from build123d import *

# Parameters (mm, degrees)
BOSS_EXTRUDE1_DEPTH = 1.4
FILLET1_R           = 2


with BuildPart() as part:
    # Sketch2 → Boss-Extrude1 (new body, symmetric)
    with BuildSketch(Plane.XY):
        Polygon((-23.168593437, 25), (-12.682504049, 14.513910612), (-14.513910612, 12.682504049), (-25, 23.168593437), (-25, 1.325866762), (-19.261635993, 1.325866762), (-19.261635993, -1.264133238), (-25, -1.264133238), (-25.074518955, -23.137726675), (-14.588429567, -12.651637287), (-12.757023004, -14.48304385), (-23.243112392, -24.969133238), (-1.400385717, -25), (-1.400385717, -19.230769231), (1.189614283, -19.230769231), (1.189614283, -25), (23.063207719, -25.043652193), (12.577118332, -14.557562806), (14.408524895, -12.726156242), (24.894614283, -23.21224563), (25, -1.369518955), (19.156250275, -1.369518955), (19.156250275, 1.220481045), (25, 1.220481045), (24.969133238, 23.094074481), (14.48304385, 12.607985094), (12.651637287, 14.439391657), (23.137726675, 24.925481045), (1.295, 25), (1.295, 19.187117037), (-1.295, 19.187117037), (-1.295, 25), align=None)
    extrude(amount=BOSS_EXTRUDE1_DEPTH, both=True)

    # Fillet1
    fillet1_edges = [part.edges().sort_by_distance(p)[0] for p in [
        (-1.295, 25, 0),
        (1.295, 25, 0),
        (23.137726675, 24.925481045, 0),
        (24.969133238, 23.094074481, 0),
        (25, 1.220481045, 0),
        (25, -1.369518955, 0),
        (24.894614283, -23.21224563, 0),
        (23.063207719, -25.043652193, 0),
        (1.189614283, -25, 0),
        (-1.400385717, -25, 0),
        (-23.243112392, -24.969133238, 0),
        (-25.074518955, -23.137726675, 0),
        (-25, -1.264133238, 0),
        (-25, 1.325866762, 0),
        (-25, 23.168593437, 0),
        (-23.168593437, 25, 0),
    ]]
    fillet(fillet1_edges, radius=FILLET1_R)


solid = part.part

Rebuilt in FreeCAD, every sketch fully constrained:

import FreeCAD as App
import Part
import Sketcher
from FreeCAD import Vector
Q = App.Units.Quantity


def edges_at(feature, points):
    """Names of the edges that pass closest to the given points."""
    edges = feature.Shape.Edges
    near = lambda p: min(range(len(edges)), key=lambda i: edges[i].distToShape(Part.Vertex(*p))[0])
    return sorted({f"Edge{near(p) + 1}" for p in points})

doc = App.newDocument("Part")
params = doc.addObject("Spreadsheet::Sheet", "Params")
for row, (alias, value) in enumerate([
    ("sketch1_width", "2.59 mm"),
    ("sketch1_length", "2.59 mm"),
    ("pad1_length", "2.8 mm"),
    ("fillet_radius", "2 mm"),
], start=1):
    params.set(f"A{row}", alias)
    params.set(f"B{row}", "=" + value)
    params.setAlias(f"B{row}", alias)

body = doc.addObject("PartDesign::Body", "Body")

sketch1 = doc.addObject("Sketcher::SketchObject", "Sketch")
body.addObject(sketch1)
sketch1.AttachmentSupport = (doc.XY_Plane, [""])
sketch1.MapMode = "FlatFace"
sketch1.addGeometry(Part.LineSegment(Vector(-23.2, 25, 0), Vector(-12.7, 14.5, 0)), False)
sketch1.addGeometry(Part.LineSegment(Vector(-12.7, 14.5, 0), Vector(-14.5, 12.7, 0)), False)
sketch1.addGeometry(Part.LineSegment(Vector(-14.5, 12.7, 0), Vector(-25, 23.2, 0)), False)
sketch1.addGeometry(Part.LineSegment(Vector(-25, 23.2, 0), Vector(-25, 1.3, 0)), False)
sketch1.addGeometry(Part.LineSegment(Vector(-25, 1.3, 0), Vector(-19.3, 1.3, 0)), False)
sketch1.addGeometry(Part.LineSegment(Vector(-19.3, 1.3, 0), Vector(-19.3, -1.3, 0)), False)
sketch1.addGeometry(Part.LineSegment(Vector(-19.3, -1.3, 0), Vector(-25, -1.3, 0)), False)
sketch1.addGeometry(Part.LineSegment(Vector(-25, -1.3, 0), Vector(-25.1, -23.1, 0)), False)
sketch1.addGeometry(Part.LineSegment(Vector(-25.1, -23.1, 0), Vector(-14.6, -12.7, 0)), False)
sketch1.addGeometry(Part.LineSegment(Vector(-14.6, -12.7, 0), Vector(-12.8, -14.5, 0)), False)
sketch1.addGeometry(Part.LineSegment(Vector(-12.8, -14.5, 0), Vector(-23.2, -25, 0)), False)
sketch1.addGeometry(Part.LineSegment(Vector(-23.2, -25, 0), Vector(-1.4, -25, 0)), False)
sketch1.addGeometry(Part.LineSegment(Vector(-1.4, -25, 0), Vector(-1.4, -19.2, 0)), False)
sketch1.addGeometry(Part.LineSegment(Vector(-1.4, -19.2, 0), Vector(1.2, -19.2, 0)), False)
sketch1.addGeometry(Part.LineSegment(Vector(1.2, -19.2, 0), Vector(1.2, -25, 0)), False)
sketch1.addGeometry(Part.LineSegment(Vector(1.2, -25, 0), Vector(23.1, -25, 0)), False)
sketch1.addGeometry(Part.LineSegment(Vector(23.1, -25, 0), Vector(12.6, -14.6, 0)), False)
sketch1.addGeometry(Part.LineSegment(Vector(12.6, -14.6, 0), Vector(14.4, -12.7, 0)), False)
sketch1.addGeometry(Part.LineSegment(Vector(14.4, -12.7, 0), Vector(24.9, -23.2, 0)), False)
sketch1.addGeometry(Part.LineSegment(Vector(24.9, -23.2, 0), Vector(25, -1.4, 0)), False)
sketch1.addGeometry(Part.LineSegment(Vector(25, -1.4, 0), Vector(19.2, -1.4, 0)), False)
sketch1.addGeometry(Part.LineSegment(Vector(19.2, -1.4, 0), Vector(19.2, 1.2, 0)), False)
sketch1.addGeometry(Part.LineSegment(Vector(19.2, 1.2, 0), Vector(25, 1.2, 0)), False)
sketch1.addGeometry(Part.LineSegment(Vector(25, 1.2, 0), Vector(25, 23.1, 0)), False)
sketch1.addGeometry(Part.LineSegment(Vector(25, 23.1, 0), Vector(14.5, 12.6, 0)), False)
sketch1.addGeometry(Part.LineSegment(Vector(14.5, 12.6, 0), Vector(12.7, 14.4, 0)), False)
sketch1.addGeometry(Part.LineSegment(Vector(12.7, 14.4, 0), Vector(23.1, 24.9, 0)), False)
sketch1.addGeometry(Part.LineSegment(Vector(23.1, 24.9, 0), Vector(1.3, 25, 0)), False)
sketch1.addGeometry(Part.LineSegment(Vector(1.3, 25, 0), Vector(1.3, 19.2, 0)), False)
sketch1.addGeometry(Part.LineSegment(Vector(1.3, 19.2, 0), Vector(-1.3, 19.2, 0)), False)
sketch1.addGeometry(Part.LineSegment(Vector(-1.3, 19.2, 0), Vector(-1.3, 25, 0)), False)
sketch1.addGeometry(Part.LineSegment(Vector(-1.3, 25, 0), Vector(-23.2, 25, 0)), False)
sketch1.addConstraint(Sketcher.Constraint("Coincident", 0, 2, 1, 1))
sketch1.addConstraint(Sketcher.Constraint("Coincident", 1, 2, 2, 1))
sketch1.addConstraint(Sketcher.Constraint("Coincident", 2, 2, 3, 1))
sketch1.addConstraint(Sketcher.Constraint("Coincident", 3, 2, 4, 1))
sketch1.addConstraint(Sketcher.Constraint("Coincident", 4, 2, 5, 1))
sketch1.addConstraint(Sketcher.Constraint("Coincident", 5, 2, 6, 1))
sketch1.addConstraint(Sketcher.Constraint("Coincident", 6, 2, 7, 1))
sketch1.addConstraint(Sketcher.Constraint("Coincident", 7, 2, 8, 1))
sketch1.addConstraint(Sketcher.Constraint("Coincident", 8, 2, 9, 1))
sketch1.addConstraint(Sketcher.Constraint("Coincident", 9, 2, 10, 1))
sketch1.addConstraint(Sketcher.Constraint("Coincident", 10, 2, 11, 1))
sketch1.addConstraint(Sketcher.Constraint("Coincident", 11, 2, 12, 1))
sketch1.addConstraint(Sketcher.Constraint("Coincident", 12, 2, 13, 1))
sketch1.addConstraint(Sketcher.Constraint("Coincident", 13, 2, 14, 1))
sketch1.addConstraint(Sketcher.Constraint("Coincident", 14, 2, 15, 1))
sketch1.addConstraint(Sketcher.Constraint("Coincident", 15, 2, 16, 1))
sketch1.addConstraint(Sketcher.Constraint("Coincident", 16, 2, 17, 1))
sketch1.addConstraint(Sketcher.Constraint("Coincident", 17, 2, 18, 1))
sketch1.addConstraint(Sketcher.Constraint("Coincident", 18, 2, 19, 1))
sketch1.addConstraint(Sketcher.Constraint("Coincident", 19, 2, 20, 1))
sketch1.addConstraint(Sketcher.Constraint("Coincident", 20, 2, 21, 1))
sketch1.addConstraint(Sketcher.Constraint("Coincident", 21, 2, 22, 1))
sketch1.addConstraint(Sketcher.Constraint("Coincident", 22, 2, 23, 1))
sketch1.addConstraint(Sketcher.Constraint("Coincident", 23, 2, 24, 1))
sketch1.addConstraint(Sketcher.Constraint("Coincident", 24, 2, 25, 1))
sketch1.addConstraint(Sketcher.Constraint("Coincident", 25, 2, 26, 1))
sketch1.addConstraint(Sketcher.Constraint("Coincident", 26, 2, 27, 1))
sketch1.addConstraint(Sketcher.Constraint("Coincident", 27, 2, 28, 1))
sketch1.addConstraint(Sketcher.Constraint("Coincident", 28, 2, 29, 1))
sketch1.addConstraint(Sketcher.Constraint("Coincident", 29, 2, 30, 1))
sketch1.addConstraint(Sketcher.Constraint("Coincident", 30, 2, 31, 1))
sketch1.addConstraint(Sketcher.Constraint("Coincident", 31, 2, 0, 1))
sketch1.addConstraint(Sketcher.Constraint("Vertical", 3))
sketch1.addConstraint(Sketcher.Constraint("Horizontal", 4))
sketch1.addConstraint(Sketcher.Constraint("Vertical", 5))
sketch1.addConstraint(Sketcher.Constraint("Horizontal", 6))
sketch1.addConstraint(Sketcher.Constraint("Vertical", 12))
sketch1.addConstraint(Sketcher.Constraint("Horizontal", 13))
sketch1.addConstraint(Sketcher.Constraint("Vertical", 14))
sketch1.addConstraint(Sketcher.Constraint("Horizontal", 20))
sketch1.addConstraint(Sketcher.Constraint("Vertical", 21))
sketch1.addConstraint(Sketcher.Constraint("Horizontal", 22))
sketch1.addConstraint(Sketcher.Constraint("Vertical", 28))
sketch1.addConstraint(Sketcher.Constraint("Horizontal", 29))
sketch1.addConstraint(Sketcher.Constraint("Vertical", 30))
sketch1.addConstraint(Sketcher.Constraint("Horizontal", 31))
sketch1.addConstraint(Sketcher.Constraint("Symmetric", 27, 2, 30, 2, -2))
sketch1.addConstraint(Sketcher.Constraint("Perpendicular", 0, 1))
sketch1.addConstraint(Sketcher.Constraint("Perpendicular", 1, 2))
sketch1.addConstraint(Sketcher.Constraint("Perpendicular", 2, 8))
sketch1.addConstraint(Sketcher.Constraint("Perpendicular", 8, 9))
sketch1.addConstraint(Sketcher.Constraint("Perpendicular", 9, 10))
sketch1.addConstraint(Sketcher.Constraint("Perpendicular", 10, 16))
sketch1.addConstraint(Sketcher.Constraint("Perpendicular", 16, 17))
sketch1.addConstraint(Sketcher.Constraint("Perpendicular", 17, 18))
sketch1.addConstraint(Sketcher.Constraint("Perpendicular", 18, 24))
sketch1.addConstraint(Sketcher.Constraint("Perpendicular", 24, 25))
sketch1.addConstraint(Sketcher.Constraint("Perpendicular", 25, 26))
sketch1.addConstraint(Sketcher.Constraint("Horizontal", 11, 2, 14, 2))
sketch1.addConstraint(Sketcher.Constraint("Vertical", 3, 2, 6, 2))
sketch1.addConstraint(Sketcher.Constraint("Vertical", 19, 2, 22, 2))
sketch1.addConstraint(Sketcher.Constraint("Equal", 13, 29))
sketch1.addConstraint(Sketcher.Constraint("Equal", 29, 5))
sketch1.addConstraint(Sketcher.Constraint("Equal", 5, 21))
sketch1.addConstraint(Sketcher.Constraint("Equal", 0, 2))
sketch1.addConstraint(Sketcher.Constraint("Equal", 2, 8))
sketch1.addConstraint(Sketcher.Constraint("Equal", 1, 9))
sketch1.addConstraint(Sketcher.Constraint("Equal", 8, 10))
sketch1.addConstraint(Sketcher.Constraint("Equal", 10, 16))
sketch1.addConstraint(Sketcher.Constraint("Equal", 9, 17))
sketch1.addConstraint(Sketcher.Constraint("Equal", 16, 18))
sketch1.addConstraint(Sketcher.Constraint("Equal", 18, 24))
sketch1.addConstraint(Sketcher.Constraint("Equal", 17, 25))
sketch1.addConstraint(Sketcher.Constraint("Equal", 24, 26))
sketch1.addConstraint(Sketcher.Constraint("Angle", 0, Q("-45 deg")))
sketch1.addConstraint(Sketcher.Constraint("DistanceX", 2, 2, -1, 1, 25.0))
sketch1.addConstraint(Sketcher.Constraint("DistanceY", 11, 2, -1, 1, 25.0))
sketch1.addConstraint(Sketcher.Constraint("DistanceX", -1, 1, 19, 2, 25.0))
sketch1.addConstraint(Sketcher.Constraint("DistanceY", -1, 1, 27, 2, 25.0))
sketch1.addConstraint(Sketcher.Constraint("DistanceX", 13, 1, 13, 2, 2.59))
sketch1.addConstraint(Sketcher.Constraint("Distance", 1, 2.59))
sketch1.addConstraint(Sketcher.Constraint("DistanceY", 10, 2, 6, 2, 23.705))
sketch1.addConstraint(Sketcher.Constraint("DistanceX", 14, 2, 18, 2, 23.705))
sketch1.addConstraint(Sketcher.Constraint("DistanceY", 22, 2, 26, 2, 23.705))
sketch1.addConstraint(Sketcher.Constraint("DistanceX", 20, 2, 20, 1, 5.84375))
sketch1.addConstraint(Sketcher.Constraint("DistanceY", 12, 1, 12, 2, 5.769231))
sketch1.addConstraint(Sketcher.Constraint("Distance", 0, 14.82957))
sketch1.addConstraint(Sketcher.Constraint("Distance", 11, 21.842748))
sketch1.addConstraint(Sketcher.Constraint("Distance", 19, 21.842981))
sketch1.addConstraint(Sketcher.Constraint("DistanceX", 4, 1, 4, 2, 5.738364))
sketch1.addConstraint(Sketcher.Constraint("DistanceY", 3, 2, 3, 1, 21.842727))
sketch1.addConstraint(Sketcher.Constraint("DistanceY", 28, 2, 28, 1, 5.812883))
sketch1.addConstraint(Sketcher.Constraint("DistanceX", 7, 2, -1, 1, 25.074519))
sketch1.addConstraint(Sketcher.Constraint("DistanceY", 19, 2, -1, 1, 1.369519))
sketch1.addConstraint(Sketcher.Constraint("DistanceX", 17, 2, 23, 2, 10.560608))
sketch1.setExpression("Constraints[79]", "Params.sketch1_width")
sketch1.setExpression("Constraints[80]", "Params.sketch1_length")
pad1 = doc.addObject("PartDesign::Pad", "Pad")
body.addObject(pad1)
pad1.Profile = sketch1
pad1.setExpression("Length", "Params.pad1_length")
pad1.Midplane = True
doc.recompute()

fillet = doc.addObject("PartDesign::Fillet", "Fillet")
body.addObject(fillet)
fillet.Base = (pad1, edges_at(pad1, [
    (-1.295, 25, 0),
    (1.295, 25, 0),
    (23.138, 24.925, 0),
    (24.969, 23.094, 0),
    (25, 1.22, 0),
    (25, -1.37, 0),
    (24.895, -23.212, 0),
    (23.063, -25.044, 0),
    (1.19, -25, 0),
    (-1.4, -25, 0),
    (-23.243, -24.969, 0),
    (-25.075, -23.138, 0),
    (-25, -1.264, 0),
    (-25, 1.326, 0),
    (-25, 23.169, 0),
    (-23.169, 25, 0),
]))
fillet.setExpression("Radius", "Params.fillet_radius")

doc.recompute()
